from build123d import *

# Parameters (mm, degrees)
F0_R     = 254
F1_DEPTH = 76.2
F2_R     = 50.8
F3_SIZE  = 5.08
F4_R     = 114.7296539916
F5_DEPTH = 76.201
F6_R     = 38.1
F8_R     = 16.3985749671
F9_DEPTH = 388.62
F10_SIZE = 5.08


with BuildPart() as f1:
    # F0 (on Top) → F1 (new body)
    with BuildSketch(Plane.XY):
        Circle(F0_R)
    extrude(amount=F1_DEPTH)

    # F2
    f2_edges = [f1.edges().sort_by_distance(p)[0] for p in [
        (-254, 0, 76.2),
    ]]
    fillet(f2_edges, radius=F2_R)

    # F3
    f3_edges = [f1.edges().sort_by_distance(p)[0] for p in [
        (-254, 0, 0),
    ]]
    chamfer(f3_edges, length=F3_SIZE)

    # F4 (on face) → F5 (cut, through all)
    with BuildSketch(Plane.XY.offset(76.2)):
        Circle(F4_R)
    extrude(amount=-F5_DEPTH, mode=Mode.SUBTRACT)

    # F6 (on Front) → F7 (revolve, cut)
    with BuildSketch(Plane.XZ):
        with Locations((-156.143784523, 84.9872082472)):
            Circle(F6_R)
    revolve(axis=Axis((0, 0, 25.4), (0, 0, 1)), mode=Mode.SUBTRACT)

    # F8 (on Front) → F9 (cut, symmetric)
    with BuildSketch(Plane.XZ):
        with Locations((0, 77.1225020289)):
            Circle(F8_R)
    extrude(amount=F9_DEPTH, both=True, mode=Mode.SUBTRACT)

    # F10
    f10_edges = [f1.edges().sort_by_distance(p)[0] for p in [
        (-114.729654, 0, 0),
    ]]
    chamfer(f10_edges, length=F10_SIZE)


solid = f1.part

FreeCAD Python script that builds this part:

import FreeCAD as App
import Part
import Sketcher
from FreeCAD import Vector
Q = App.Units.Quantity


def edges_at(feature, points):
    """Names of the edges that pass closest to the given points."""
    edges = feature.Shape.Edges
    near = lambda p: min(range(len(edges)), key=lambda i: edges[i].distToShape(Part.Vertex(*p))[0])
    return sorted({f"Edge{near(p) + 1}" for p in points})

doc = App.newDocument("Part")
params = doc.addObject("Spreadsheet::Sheet", "Params")
for row, (alias, value) in enumerate([
    ("sketch1_diameter", "20 in"),
    ("pad1_length", "3 in"),
    ("fillet_radius", "2 in"),
    ("chamfer_size", "0.2 in"),
    ("sketch3_diameter", "3 in"),
    ("groove_angle", "360 deg"),
    ("pocket2_length", "30.6 in"),
    ("chamfer2_size", "0.2 in"),
], start=1):
    params.set(f"A{row}", alias)
    params.set(f"B{row}", "=" + value)
    params.setAlias(f"B{row}", alias)

body = doc.addObject("PartDesign::Body", "Body")

sketch1 = doc.addObject("Sketcher::SketchObject", "Sketch")
body.addObject(sketch1)
sketch1.AttachmentSupport = (doc.XY_Plane, [""])
sketch1.MapMode = "FlatFace"
sketch1.addGeometry(Part.Circle(Vector(0, 0, 0), Vector(0, 0, 1), 254), False)
sketch1.addConstraint([
    Sketcher.Constraint("Coincident", 0, 3, -1, 1),
    Sketcher.Constraint("Diameter", 0, Q("20 in")),
])
sketch1.setExpression("Constraints[1]", "Params.sketch1_diameter")
pad1 = doc.addObject("PartDesign::Pad", "Pad")
body.addObject(pad1)
pad1.Profile = sketch1
pad1.setExpression("Length", "Params.pad1_length")
doc.recompute()

fillet = doc.addObject("PartDesign::Fillet", "Fillet")
body.addObject(fillet)
fillet.Base = (pad1, edges_at(pad1, [(-254, 0, 76.2)]))
fillet.setExpression("Radius", "Params.fillet_radius")
doc.recompute()

chamfer = doc.addObject("PartDesign::Chamfer", "Chamfer")
body.addObject(chamfer)
chamfer.Base = (fillet, edges_at(fillet, [(-254, 0, 0)]))
chamfer.setExpression("Size", "Params.chamfer_size")

sketch2 = doc.addObject("Sketcher::SketchObject", "Sketch001")
body.addObject(sketch2)
sketch2.AttachmentSupport = (doc.XY_Plane, [""])
sketch2.MapMode = "FlatFace"
sketch2.AttachmentOffset = App.Placement(Vector(0, 0, 3 * 25.4), App.Rotation())
sketch2.addGeometry(Part.Circle(Vector(0, 0, 0), Vector(0, 0, 1), 115), False)
sketch2.addConstraint([
    Sketcher.Constraint("Coincident", 0, 3, -1, 1),
    Sketcher.Constraint("Diameter", 0, 229.459308),
])
pocket1 = doc.addObject("PartDesign::Pocket", "Pocket")
body.addObject(pocket1)
pocket1.Profile = sketch2
pocket1.Type = "ThroughAll"

sketch3 = doc.addObject("Sketcher::SketchObject", "Sketch002")
body.addObject(sketch3)
sketch3.AttachmentSupport = (doc.XZ_Plane, [""])
sketch3.MapMode = "FlatFace"
sketch3.addGeometry(Part.Circle(Vector(-156, 85, 0), Vector(0, 0, 1), 38), False)
sketch3.addConstraint([
    Sketcher.Constraint("Diameter", 0, Q("3 in")),
    Sketcher.Constraint("DistanceY", -1, 1, 0, 3, 84.987208),
    Sketcher.Constraint("DistanceX", 0, 3, -1, 1, 156.143785),
])
sketch3.setExpression("Constraints[0]", "Params.sketch3_diameter")
groove = doc.addObject("PartDesign::Groove", "Groove")
body.addObject(groove)
groove.Profile = sketch3
groove.ReferenceAxis = (sketch3, ["V_Axis"])
groove.setExpression("Angle", "Params.groove_angle")

sketch4 = doc.addObject("Sketcher::SketchObject", "Sketch003")
body.addObject(sketch4)
sketch4.AttachmentSupport = (doc.XZ_Plane, [""])
sketch4.MapMode = "FlatFace"
sketch4.addGeometry(Part.Circle(Vector(0, 77, 0), Vector(0, 0, 1), 16), False)
sketch4.addConstraint([
    Sketcher.Constraint("PointOnObject", 0, 3, -2),
    Sketcher.Constraint("Diameter", 0, 32.79715),
    Sketcher.Constraint("DistanceY", -1, 1, 0, 3, 77.122502),
])
pocket2 = doc.addObject("PartDesign::Pocket", "Pocket001")
body.addObject(pocket2)
pocket2.Profile = sketch4
pocket2.setExpression("Length", "Params.pocket2_length")
pocket2.Midplane = True
doc.recompute()

chamfer2 = doc.addObject("PartDesign::Chamfer", "Chamfer001")
body.addObject(chamfer2)
chamfer2.Base = (pocket2, edges_at(pocket2, [(-114.73, 0, 0)]))
chamfer2.setExpression("Size", "Params.chamfer2_size")

doc.recompute()
